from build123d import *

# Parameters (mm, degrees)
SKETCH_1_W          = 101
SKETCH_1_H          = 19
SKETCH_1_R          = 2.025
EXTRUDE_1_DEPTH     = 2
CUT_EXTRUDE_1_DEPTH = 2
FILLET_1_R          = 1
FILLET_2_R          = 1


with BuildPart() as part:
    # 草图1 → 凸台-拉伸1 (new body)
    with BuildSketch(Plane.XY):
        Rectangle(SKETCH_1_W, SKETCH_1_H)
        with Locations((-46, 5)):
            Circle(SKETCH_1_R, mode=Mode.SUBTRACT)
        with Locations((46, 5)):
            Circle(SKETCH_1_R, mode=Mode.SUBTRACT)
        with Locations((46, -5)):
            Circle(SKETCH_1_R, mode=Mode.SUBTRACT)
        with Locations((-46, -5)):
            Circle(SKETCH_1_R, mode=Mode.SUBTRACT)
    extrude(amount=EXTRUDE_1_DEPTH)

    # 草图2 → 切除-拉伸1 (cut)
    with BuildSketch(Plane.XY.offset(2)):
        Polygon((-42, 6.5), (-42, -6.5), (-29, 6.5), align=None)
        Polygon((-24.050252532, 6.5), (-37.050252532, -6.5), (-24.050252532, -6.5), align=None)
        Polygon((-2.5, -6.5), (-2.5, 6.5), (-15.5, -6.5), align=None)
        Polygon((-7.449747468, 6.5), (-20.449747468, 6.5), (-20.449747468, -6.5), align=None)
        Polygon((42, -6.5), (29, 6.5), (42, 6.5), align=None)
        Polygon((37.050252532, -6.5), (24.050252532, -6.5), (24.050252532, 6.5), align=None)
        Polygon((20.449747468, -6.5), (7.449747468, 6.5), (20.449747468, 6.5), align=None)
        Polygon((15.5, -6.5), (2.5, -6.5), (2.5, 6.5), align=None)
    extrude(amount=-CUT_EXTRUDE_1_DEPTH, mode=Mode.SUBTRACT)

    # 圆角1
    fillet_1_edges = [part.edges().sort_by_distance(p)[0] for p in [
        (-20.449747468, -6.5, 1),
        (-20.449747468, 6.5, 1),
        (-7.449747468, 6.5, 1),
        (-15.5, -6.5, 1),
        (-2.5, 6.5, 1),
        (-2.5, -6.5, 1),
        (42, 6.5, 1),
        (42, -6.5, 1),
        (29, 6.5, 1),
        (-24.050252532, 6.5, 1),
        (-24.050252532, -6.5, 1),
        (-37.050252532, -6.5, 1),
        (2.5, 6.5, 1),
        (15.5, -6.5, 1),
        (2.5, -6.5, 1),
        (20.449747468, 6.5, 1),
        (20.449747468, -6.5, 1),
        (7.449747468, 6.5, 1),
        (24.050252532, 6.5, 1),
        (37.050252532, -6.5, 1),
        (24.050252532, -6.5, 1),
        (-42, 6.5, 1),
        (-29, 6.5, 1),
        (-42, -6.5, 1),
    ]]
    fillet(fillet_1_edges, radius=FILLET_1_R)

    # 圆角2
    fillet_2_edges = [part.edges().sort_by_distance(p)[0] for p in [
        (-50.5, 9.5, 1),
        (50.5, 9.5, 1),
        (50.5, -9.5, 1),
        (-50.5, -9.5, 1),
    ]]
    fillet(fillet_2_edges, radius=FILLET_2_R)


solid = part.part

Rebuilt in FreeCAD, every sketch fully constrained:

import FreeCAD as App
import Part
import Sketcher


def edges_at(feature, points):
    """Names of the edges that pass closest to the given points."""
    edges = feature.Shape.Edges
    near = lambda p: min(range(len(edges)), key=lambda i: edges[i].distToShape(Part.Vertex(*p))[0])
    return sorted({f"Edge{near(p) + 1}" for p in points})


def add_polygon(sketch, points):
    """Adds a closed chain of lines whose ends are joined by coincident constraints."""
    first, n = sketch.GeometryCount, len(points)
    for a, b in zip(points, points[1:] + points[:1]):
        sketch.addGeometry(Part.LineSegment(App.Vector(*a, 0), App.Vector(*b, 0)), False)
    for i in range(n):
        sketch.addConstraint(Sketcher.Constraint("Coincident", first + i, 2, first + (i + 1) % n, 1))

doc = App.newDocument("Part")
body = doc.addObject("PartDesign::Body", "Body")

# Sketch on XY plane
sketch1 = body.newObject("Sketcher::SketchObject", "Sketch")
sketch1.AttachmentSupport = (doc.getObject("XY_Plane"), [""])
sketch1.MapMode = "FlatFace"
add_polygon(sketch1, [(-50.5, 9.5), (-50.5, -9.5), (50.5, -9.5), (50.5, 9.5)])  # lines 0-3
sketch1.addGeometry(Part.Circle(App.Vector(-46, -5, 0), App.Vector(0, 0, 1), 2.025), False)  # 4
sketch1.addGeometry(Part.Circle(App.Vector(46, -5, 0), App.Vector(0, 0, 1), 2.025), False)  # 5
sketch1.addGeometry(Part.Circle(App.Vector(-46, 5, 0), App.Vector(0, 0, 1), 2.025), False)  # 6
sketch1.addGeometry(Part.Circle(App.Vector(46, 5, 0), App.Vector(0, 0, 1), 2.025), False)  # 7
sketch1.addConstraint([
    Sketcher.Constraint("Vertical", 0),
    Sketcher.Constraint("Horizontal", 1),
    Sketcher.Constraint("Vertical", 2),
    Sketcher.Constraint("Horizontal", 3),
    Sketcher.Constraint("Equal", 4, 5),
    Sketcher.Constraint("Equal", 5, 6),
    Sketcher.Constraint("Equal", 6, 7),
    Sketcher.Constraint("Symmetric", 5, 3, 6, 3, -1, 1),
    Sketcher.Constraint("Symmetric", 4, 3, 7, 3, -1, 1),
    Sketcher.Constraint("Symmetric", 0, 2, 2, 2, -1, 1),
    Sketcher.Constraint("Symmetric", 4, 3, 5, 3, -2),
    Sketcher.Constraint("Diameter", 4, 4.05),
    Sketcher.Constraint("DistanceX", 1, 1, 1, 2, 101.0),
    Sketcher.Constraint("DistanceY", 0, 2, 0, 1, 19.0),
    Sketcher.Constraint("DistanceX", 4, 3, -1, 1, 46.0),
    Sketcher.Constraint("DistanceY", 4, 3, -1, 1, 5.0),
])
pad1 = body.newObject("PartDesign::Pad", "Pad")
pad1.Profile = sketch1
pad1.Length = 2

# Sketch on XY plane
sketch2 = body.newObject("Sketcher::SketchObject", "Sketch001")
sketch2.AttachmentSupport = (doc.getObject("XY_Plane"), [""])
sketch2.MapMode = "FlatFace"
sketch2.AttachmentOffset = App.Placement(App.Vector(0, 0, 2), App.Rotation())
add_polygon(sketch2, [(-42, 6.5), (-42, -6.5), (-29, 6.5)])  # lines 0-2
add_polygon(sketch2, [(-24.050253, 6.5), (-37.050253, -6.5), (-24.050253, -6.5)])  # lines 3-5
add_polygon(sketch2, [(-2.5, -6.5), (-2.5, 6.5), (-15.5, -6.5)])  # lines 6-8
add_polygon(sketch2, [(-7.449747, 6.5), (-20.449747, 6.5), (-20.449747, -6.5)])  # lines 9-11
add_polygon(sketch2, [(29, 6.5), (42, -6.5), (42, 6.5)])  # lines 12-14
add_polygon(sketch2, [(24.050253, -6.5), (37.050253, -6.5), (24.050253, 6.5)])  # lines 15-17
add_polygon(sketch2, [(7.449747, 6.5), (20.449747, -6.5), (20.449747, 6.5)])  # lines 18-20
add_polygon(sketch2, [(2.5, -6.5), (15.5, -6.5), (2.5, 6.5)])  # lines 21-23
sketch2.addConstraint([
    Sketcher.Constraint("Vertical", 0),
    Sketcher.Constraint("Horizontal", 2),
    Sketcher.Constraint("Horizontal", 4),
    Sketcher.Constraint("Vertical", 5),
    Sketcher.Constraint("Vertical", 6),
    Sketcher.Constraint("Horizontal", 8),
    Sketcher.Constraint("Horizontal", 9),
    Sketcher.Constraint("Vertical", 10),
    Sketcher.Constraint("Vertical", 13),
    Sketcher.Constraint("Horizontal", 14),
    Sketcher.Constraint("Horizontal", 15),
    Sketcher.Constraint("Vertical", 17),
    Sketcher.Constraint("Vertical", 19),
    Sketcher.Constraint("Horizontal", 20),
    Sketcher.Constraint("Horizontal", 21),
    Sketcher.Constraint("Vertical", 23),
    Sketcher.Constraint("Symmetric", 2, 2, 12, 2, -1, 1),
    Sketcher.Constraint("Symmetric", 4, 2, 16, 2, -1, 1),
    Sketcher.Constraint("Symmetric", 9, 2, 18, 2, -1, 1),
    Sketcher.Constraint("Symmetric", 8, 2, 22, 2, -1, 1),
    Sketcher.Constraint("Symmetric", 1, 2, 14, 2, -2),
    Sketcher.Constraint("Symmetric", 3, 2, 15, 2, -2),
    Sketcher.Constraint("Symmetric", 11, 2, 20, 2, -2),
    Sketcher.Constraint("Symmetric", 7, 2, 21, 2, -2),
    Sketcher.Constraint("Parallel", 1, 3),
    Sketcher.Constraint("Parallel", 3, 7),
    Sketcher.Constraint("Parallel", 7, 11),
    Sketcher.Constraint("Perpendicular", 11, 12),
    Sketcher.Constraint("Parallel", 12, 16),
    Sketcher.Constraint("Parallel", 16, 18),
    Sketcher.Constraint("Parallel", 18, 22),
    Sketcher.Constraint("Horizontal", 0, 2, 3, 2),
    Sketcher.Constraint("Horizontal", 2, 2, 5, 2),
    Sketcher.Constraint("Horizontal", 5, 2, 6, 2),
    Sketcher.Constraint("Horizontal", 6, 2, 9, 2),
    Sketcher.Constraint("DistanceX", 2, 2, 2, 1, 13.0),
    Sketcher.Constraint("DistanceX", 0, 2, -1, 1, 42.0),
    Sketcher.Constraint("DistanceX", 6, 2, 22, 2, 5.0),
    Sketcher.Constraint("DistanceX", 3, 2, -1, 1, 37.050253),
    Sketcher.Constraint("DistanceX", 9, 2, -1, 1, 20.449747),
])
pocket1 = body.newObject("PartDesign::Pocket", "Pocket")
pocket1.Profile = sketch2
pocket1.Length = 2
doc.recompute()

fillet = body.newObject("PartDesign::Fillet", "Fillet")
fillet.Base = (pocket1, edges_at(pocket1, [
    (-20.45, -6.5, 1),
    (-20.45, 6.5, 1),
    (-7.45, 6.5, 1),
    (-15.5, -6.5, 1),
    (-2.5, 6.5, 1),
    (-2.5, -6.5, 1),
    (42, 6.5, 1),
    (42, -6.5, 1),
    (29, 6.5, 1),
    (-24.05, 6.5, 1),
    (-24.05, -6.5, 1),
    (-37.05, -6.5, 1),
    (2.5, 6.5, 1),
    (15.5, -6.5, 1),
    (2.5, -6.5, 1),
    (20.45, 6.5, 1),
    (20.45, -6.5, 1),
    (7.45, 6.5, 1),
    (24.05, 6.5, 1),
    (37.05, -6.5, 1),
    (24.05, -6.5, 1),
    (-42, 6.5, 1),
    (-29, 6.5, 1),
    (-42, -6.5, 1),
]))
fillet.Radius = 1
doc.recompute()

fillet2 = body.newObject("PartDesign::Fillet", "Fillet001")
fillet2.Base = (fillet, edges_at(fillet, [
    (-50.5, 9.5, 1),
    (50.5, 9.5, 1),
    (50.5, -9.5, 1),
    (-50.5, -9.5, 1),
]))
fillet2.Radius = 1

doc.recompute()
